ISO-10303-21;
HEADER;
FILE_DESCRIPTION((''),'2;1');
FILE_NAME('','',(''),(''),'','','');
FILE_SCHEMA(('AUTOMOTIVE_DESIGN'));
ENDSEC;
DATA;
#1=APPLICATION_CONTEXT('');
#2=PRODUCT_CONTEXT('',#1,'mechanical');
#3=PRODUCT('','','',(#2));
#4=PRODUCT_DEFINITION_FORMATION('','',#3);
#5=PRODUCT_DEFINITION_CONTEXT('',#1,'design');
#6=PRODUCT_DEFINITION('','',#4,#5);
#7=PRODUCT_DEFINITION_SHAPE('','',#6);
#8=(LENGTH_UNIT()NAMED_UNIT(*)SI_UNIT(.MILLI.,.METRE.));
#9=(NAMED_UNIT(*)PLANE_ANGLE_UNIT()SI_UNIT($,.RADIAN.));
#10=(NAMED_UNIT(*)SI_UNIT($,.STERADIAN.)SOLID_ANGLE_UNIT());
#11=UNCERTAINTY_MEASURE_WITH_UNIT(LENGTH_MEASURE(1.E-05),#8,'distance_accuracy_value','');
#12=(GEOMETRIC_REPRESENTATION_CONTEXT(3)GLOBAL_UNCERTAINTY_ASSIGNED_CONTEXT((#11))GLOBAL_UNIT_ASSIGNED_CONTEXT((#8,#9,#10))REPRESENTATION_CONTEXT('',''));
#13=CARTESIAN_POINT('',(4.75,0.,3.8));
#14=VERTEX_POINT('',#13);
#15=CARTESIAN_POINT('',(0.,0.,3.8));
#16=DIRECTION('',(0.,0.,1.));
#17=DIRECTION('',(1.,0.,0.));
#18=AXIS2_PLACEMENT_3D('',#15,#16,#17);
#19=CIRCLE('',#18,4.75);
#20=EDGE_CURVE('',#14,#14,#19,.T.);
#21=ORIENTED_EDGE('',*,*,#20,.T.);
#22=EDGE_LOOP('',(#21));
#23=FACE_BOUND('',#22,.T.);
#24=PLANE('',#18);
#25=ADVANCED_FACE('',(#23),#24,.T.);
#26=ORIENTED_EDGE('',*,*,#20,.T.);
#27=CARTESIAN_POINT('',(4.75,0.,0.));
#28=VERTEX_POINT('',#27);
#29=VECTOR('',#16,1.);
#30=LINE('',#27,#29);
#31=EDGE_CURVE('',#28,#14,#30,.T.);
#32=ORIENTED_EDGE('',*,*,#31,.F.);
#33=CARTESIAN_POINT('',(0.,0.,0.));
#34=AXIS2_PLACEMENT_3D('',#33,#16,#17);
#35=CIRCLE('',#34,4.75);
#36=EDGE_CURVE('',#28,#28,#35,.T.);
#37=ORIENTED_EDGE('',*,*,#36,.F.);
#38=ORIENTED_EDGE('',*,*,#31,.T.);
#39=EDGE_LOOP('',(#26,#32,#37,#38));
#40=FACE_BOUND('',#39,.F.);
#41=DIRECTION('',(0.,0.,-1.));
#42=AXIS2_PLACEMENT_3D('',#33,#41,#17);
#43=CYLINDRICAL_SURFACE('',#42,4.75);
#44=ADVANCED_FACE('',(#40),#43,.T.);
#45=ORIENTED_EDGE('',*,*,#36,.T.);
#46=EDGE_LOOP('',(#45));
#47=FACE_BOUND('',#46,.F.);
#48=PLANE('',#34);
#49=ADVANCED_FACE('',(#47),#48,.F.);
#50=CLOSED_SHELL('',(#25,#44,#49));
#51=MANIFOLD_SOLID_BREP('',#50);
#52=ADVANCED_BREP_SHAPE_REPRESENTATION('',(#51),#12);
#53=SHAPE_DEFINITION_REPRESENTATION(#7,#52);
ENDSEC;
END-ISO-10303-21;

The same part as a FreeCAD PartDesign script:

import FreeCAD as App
import Part
import Sketcher

V = App.Vector
Q = App.Units.Quantity

doc = App.newDocument("Part")
body = doc.addObject("PartDesign::Body", "Body")

# Sketch on XY plane
sketch1 = doc.addObject("Sketcher::SketchObject", "Sketch")
body.addObject(sketch1)
sketch1.AttachmentSupport = (doc.XY_Plane, [""])
sketch1.MapMode = "FlatFace"
sketch1.addGeometry(Part.Circle(V(0, 0, 0), V(0, 0, 1), 4.75), False)
sketch1.addConstraint([
    Sketcher.Constraint("Coincident", 0, 3, -1, 1),
    Sketcher.Constraint("Diameter", 0, Q("9.5 mm")),
])
pad1 = doc.addObject("PartDesign::Pad", "Pad")
body.addObject(pad1)
pad1.Profile = sketch1
pad1.Length = 3.8

doc.recompute()
